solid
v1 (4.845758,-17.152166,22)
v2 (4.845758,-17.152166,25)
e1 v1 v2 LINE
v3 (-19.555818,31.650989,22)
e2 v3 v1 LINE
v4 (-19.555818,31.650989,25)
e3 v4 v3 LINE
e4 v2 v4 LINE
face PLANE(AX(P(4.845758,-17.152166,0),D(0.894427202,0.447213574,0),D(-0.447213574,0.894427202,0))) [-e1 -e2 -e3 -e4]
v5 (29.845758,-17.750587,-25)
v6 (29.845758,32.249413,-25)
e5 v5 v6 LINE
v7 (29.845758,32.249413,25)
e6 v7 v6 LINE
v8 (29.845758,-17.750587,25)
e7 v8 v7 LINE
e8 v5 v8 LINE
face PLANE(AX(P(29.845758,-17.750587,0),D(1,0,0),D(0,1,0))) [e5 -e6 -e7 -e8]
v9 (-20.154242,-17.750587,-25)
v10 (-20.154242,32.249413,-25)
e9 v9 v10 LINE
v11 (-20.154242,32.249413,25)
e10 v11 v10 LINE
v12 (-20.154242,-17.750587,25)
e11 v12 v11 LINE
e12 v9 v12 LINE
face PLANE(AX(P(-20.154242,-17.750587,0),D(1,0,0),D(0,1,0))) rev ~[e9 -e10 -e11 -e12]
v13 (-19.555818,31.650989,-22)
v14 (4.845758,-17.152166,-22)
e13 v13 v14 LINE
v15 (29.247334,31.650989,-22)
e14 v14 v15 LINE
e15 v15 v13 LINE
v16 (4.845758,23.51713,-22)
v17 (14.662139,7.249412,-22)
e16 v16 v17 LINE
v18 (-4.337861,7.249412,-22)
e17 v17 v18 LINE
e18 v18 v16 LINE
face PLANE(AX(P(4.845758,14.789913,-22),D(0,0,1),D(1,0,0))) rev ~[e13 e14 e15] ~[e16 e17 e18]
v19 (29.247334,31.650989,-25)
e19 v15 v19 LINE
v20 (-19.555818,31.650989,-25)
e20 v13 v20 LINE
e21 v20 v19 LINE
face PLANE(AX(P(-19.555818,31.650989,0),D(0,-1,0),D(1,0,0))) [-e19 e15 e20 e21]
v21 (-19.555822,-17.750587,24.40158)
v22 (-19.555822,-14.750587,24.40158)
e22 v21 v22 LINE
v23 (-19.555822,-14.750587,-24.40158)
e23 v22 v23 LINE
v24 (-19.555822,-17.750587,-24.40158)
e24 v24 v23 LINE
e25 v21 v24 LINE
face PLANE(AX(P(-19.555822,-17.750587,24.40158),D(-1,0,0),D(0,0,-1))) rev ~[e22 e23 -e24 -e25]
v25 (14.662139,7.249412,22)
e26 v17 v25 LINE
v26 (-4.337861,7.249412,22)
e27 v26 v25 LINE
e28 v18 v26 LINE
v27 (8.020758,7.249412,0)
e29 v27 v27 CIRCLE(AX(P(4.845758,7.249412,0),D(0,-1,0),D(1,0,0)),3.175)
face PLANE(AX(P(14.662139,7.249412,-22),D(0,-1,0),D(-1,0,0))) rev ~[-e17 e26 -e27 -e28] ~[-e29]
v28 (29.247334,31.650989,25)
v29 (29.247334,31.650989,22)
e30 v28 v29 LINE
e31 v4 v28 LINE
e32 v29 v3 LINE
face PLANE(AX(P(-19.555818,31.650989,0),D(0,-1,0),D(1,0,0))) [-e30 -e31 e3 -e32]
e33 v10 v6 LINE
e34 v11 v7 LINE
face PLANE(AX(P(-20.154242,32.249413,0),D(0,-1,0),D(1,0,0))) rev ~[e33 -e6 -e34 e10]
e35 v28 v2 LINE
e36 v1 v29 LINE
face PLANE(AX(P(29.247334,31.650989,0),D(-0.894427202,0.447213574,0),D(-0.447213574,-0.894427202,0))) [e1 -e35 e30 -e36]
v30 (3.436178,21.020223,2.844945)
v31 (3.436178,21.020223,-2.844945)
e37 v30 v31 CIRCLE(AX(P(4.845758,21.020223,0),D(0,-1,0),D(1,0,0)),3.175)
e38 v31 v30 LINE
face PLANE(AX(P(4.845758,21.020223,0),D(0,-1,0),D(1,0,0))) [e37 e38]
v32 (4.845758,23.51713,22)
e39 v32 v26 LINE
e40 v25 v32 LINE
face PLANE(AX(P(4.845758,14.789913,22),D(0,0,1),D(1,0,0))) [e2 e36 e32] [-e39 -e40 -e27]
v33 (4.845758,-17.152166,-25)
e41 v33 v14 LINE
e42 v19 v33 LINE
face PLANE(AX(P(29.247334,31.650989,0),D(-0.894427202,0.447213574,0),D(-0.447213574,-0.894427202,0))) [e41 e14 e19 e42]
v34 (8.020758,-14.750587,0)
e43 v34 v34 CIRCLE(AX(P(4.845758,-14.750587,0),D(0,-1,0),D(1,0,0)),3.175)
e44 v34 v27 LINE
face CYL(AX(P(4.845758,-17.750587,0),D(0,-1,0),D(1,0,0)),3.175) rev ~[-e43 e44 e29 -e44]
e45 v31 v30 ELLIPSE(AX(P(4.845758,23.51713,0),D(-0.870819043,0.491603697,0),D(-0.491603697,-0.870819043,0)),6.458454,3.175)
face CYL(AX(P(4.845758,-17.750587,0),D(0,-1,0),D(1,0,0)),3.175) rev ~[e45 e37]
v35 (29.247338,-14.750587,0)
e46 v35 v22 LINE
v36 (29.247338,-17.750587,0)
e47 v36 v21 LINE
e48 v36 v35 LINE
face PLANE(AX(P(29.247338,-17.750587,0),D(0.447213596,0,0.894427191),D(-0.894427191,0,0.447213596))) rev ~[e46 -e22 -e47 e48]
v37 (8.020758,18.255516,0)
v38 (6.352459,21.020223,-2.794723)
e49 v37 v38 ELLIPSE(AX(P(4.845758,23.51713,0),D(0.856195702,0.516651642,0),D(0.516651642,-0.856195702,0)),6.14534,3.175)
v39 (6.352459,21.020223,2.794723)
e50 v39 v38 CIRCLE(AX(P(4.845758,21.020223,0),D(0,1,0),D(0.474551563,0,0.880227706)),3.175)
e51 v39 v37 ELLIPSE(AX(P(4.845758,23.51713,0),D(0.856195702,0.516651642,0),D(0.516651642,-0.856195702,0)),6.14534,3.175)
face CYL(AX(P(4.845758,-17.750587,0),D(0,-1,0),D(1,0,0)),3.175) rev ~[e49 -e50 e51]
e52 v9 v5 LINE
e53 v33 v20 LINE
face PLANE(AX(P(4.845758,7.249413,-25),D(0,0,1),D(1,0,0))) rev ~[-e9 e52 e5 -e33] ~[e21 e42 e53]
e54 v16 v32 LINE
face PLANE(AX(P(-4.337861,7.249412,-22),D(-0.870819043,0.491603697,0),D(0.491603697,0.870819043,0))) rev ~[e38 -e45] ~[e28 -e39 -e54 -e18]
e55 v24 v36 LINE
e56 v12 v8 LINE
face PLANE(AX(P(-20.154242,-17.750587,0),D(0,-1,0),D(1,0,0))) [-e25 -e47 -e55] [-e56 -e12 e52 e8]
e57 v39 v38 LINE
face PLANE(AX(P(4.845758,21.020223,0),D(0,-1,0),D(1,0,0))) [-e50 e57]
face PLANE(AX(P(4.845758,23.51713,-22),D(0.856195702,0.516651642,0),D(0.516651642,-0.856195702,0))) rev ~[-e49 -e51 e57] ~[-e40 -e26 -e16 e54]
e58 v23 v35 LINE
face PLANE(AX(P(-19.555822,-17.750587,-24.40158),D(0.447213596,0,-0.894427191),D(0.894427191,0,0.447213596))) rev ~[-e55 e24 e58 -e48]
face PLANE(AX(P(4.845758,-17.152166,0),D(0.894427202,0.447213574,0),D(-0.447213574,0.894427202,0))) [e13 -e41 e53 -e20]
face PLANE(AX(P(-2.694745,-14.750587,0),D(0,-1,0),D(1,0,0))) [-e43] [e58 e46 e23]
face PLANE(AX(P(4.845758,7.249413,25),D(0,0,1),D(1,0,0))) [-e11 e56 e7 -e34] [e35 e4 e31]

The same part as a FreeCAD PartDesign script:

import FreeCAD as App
import Part
import Sketcher

V = App.Vector
Q = App.Units.Quantity

doc = App.newDocument("Part")
body = doc.addObject("PartDesign::Body", "Body")

# Sketch on XY plane
sketch1 = body.newObject("Sketcher::SketchObject", "Sketch")
sketch1.AttachmentSupport = (doc.getObject("XY_Plane"), [""])
sketch1.MapMode = "FlatFace"
sketch1.addGeometry([
    Part.LineSegment(V(-20.154242, 32.249413, 0), V(-20.154242, -17.750587, 0)),  # 0
    Part.LineSegment(V(-20.154242, -17.750587, 0), V(29.845758, -17.750587, 0)),  # 1
    Part.LineSegment(V(29.845758, -17.750587, 0), V(29.845758, 32.249413, 0)),  # 2
    Part.LineSegment(V(29.845758, 32.249413, 0), V(-20.154242, 32.249413, 0)),  # 3
    Part.LineSegment(V(29.247334, 31.650989, 0), V(4.845758, -17.152166, 0)),  # 4
    Part.LineSegment(V(4.845758, -17.152166, 0), V(-19.555818, 31.650989, 0)),  # 5
    Part.LineSegment(V(-19.555818, 31.650989, 0), V(29.247334, 31.650989, 0)),  # 6
], False)
sketch1.addConstraint([
    Sketcher.Constraint("Coincident", 0, 2, 1, 1),
    Sketcher.Constraint("Coincident", 1, 2, 2, 1),
    Sketcher.Constraint("Coincident", 2, 2, 3, 1),
    Sketcher.Constraint("Coincident", 3, 2, 0, 1),
    Sketcher.Constraint("Coincident", 4, 2, 5, 1),
    Sketcher.Constraint("Coincident", 5, 2, 6, 1),
    Sketcher.Constraint("Coincident", 6, 2, 4, 1),
    Sketcher.Constraint("Vertical", 0),
    Sketcher.Constraint("Horizontal", 1),
    Sketcher.Constraint("Vertical", 2),
    Sketcher.Constraint("Horizontal", 3),
    Sketcher.Constraint("Horizontal", 6),
    Sketcher.Constraint("Equal", 3, 0),
    Sketcher.Constraint("Equal", 4, 5),
    Sketcher.Constraint("DistanceX", 1, 1, 1, 2, Q("50 mm")),
    Sketcher.Constraint("DistanceX", 0, 2, 4, 2, Q("25 mm")),
    Sketcher.Constraint("DistanceX", 6, 1, 6, 2, Q("48.803152 mm")),
    Sketcher.Constraint("DistanceX", 0, 2, -1, 1, Q("20.154242 mm")),
    Sketcher.Constraint("DistanceY", -1, 1, 5, 2, Q("31.650989 mm")),
    Sketcher.Constraint("DistanceY", 0, 2, 4, 2, Q("0.598421 mm")),
    Sketcher.Constraint("Distance", 4, Q("54.563585 mm")),
])
pad1 = body.newObject("PartDesign::Pad", "Pad")
pad1.Profile = sketch1
pad1.Length = 50
pad1.Midplane = True

# Sketch on XY plane
sketch2 = body.newObject("Sketcher::SketchObject", "Sketch001")
sketch2.AttachmentSupport = (doc.getObject("XY_Plane"), [""])
sketch2.MapMode = "FlatFace"
sketch2.addGeometry([
    Part.LineSegment(V(29.247334, 31.650989, 0), V(-19.555818, 31.650989, 0)),
    Part.LineSegment(V(-19.555818, 31.650989, 0), V(4.845758, -17.152166, 0)),
    Part.LineSegment(V(4.845758, -17.152166, 0), V(29.247334, 31.650989, 0)),
], False)
sketch2.addConstraint([
    Sketcher.Constraint("Coincident", 0, 2, 1, 1),
    Sketcher.Constraint("Coincident", 1, 2, 2, 1),
    Sketcher.Constraint("Coincident", 2, 2, 0, 1),
    Sketcher.Constraint("Horizontal", 0),
    Sketcher.Constraint("Equal", 1, 2),
    Sketcher.Constraint("DistanceX", 0, 2, 0, 1, Q("48.803152 mm")),
    Sketcher.Constraint("DistanceY", -1, 1, 0, 2, Q("31.650989 mm")),
    Sketcher.Constraint("Distance", 1, Q("54.563585 mm")),
    Sketcher.Constraint("DistanceX", 0, 2, -1, 1, Q("19.555818 mm")),
])
pad2 = body.newObject("PartDesign::Pad", "Pad001")
pad2.Profile = sketch2
pad2.Length = 44
pad2.Midplane = True

# Sketch on XY plane
sketch3 = body.newObject("Sketcher::SketchObject", "Sketch002")
sketch3.AttachmentSupport = (doc.getObject("XY_Plane"), [""])
sketch3.MapMode = "FlatFace"
sketch3.AttachmentOffset = App.Placement(V(0, 0, -22), App.Rotation())
sketch3.addGeometry([
    Part.LineSegment(V(-4.337861, 7.249412, 0), V(4.845758, 23.51713, 0)),
    Part.LineSegment(V(4.845758, 23.51713, 0), V(14.662139, 7.249412, 0)),
    Part.LineSegment(V(14.662139, 7.249412, 0), V(-4.337861, 7.249412, 0)),
], False)
sketch3.addConstraint([
    Sketcher.Constraint("Coincident", 0, 2, 1, 1),
    Sketcher.Constraint("Coincident", 1, 2, 2, 1),
    Sketcher.Constraint("Coincident", 2, 2, 0, 1),
    Sketcher.Constraint("Horizontal", 2),
    Sketcher.Constraint("DistanceX", 2, 2, 2, 1, Q("19 mm")),
    Sketcher.Constraint("Distance", 1, Q("19 mm")),
    Sketcher.Constraint("Distance", 0, Q("18.68094 mm")),
    Sketcher.Constraint("DistanceY", -1, 1, 0, 2, Q("23.51713 mm")),
    Sketcher.Constraint("DistanceX", -1, 1, 1, 2, Q("14.662139 mm")),
])
pocket1 = body.newObject("PartDesign::Pocket", "Pocket")
pocket1.Profile = sketch3
pocket1.Length = 48
pocket1.Reversed = True

# Sketch on XZ plane
sketch4 = body.newObject("Sketcher::SketchObject", "Sketch003")
sketch4.AttachmentSupport = (doc.getObject("XZ_Plane"), [""])
sketch4.MapMode = "FlatFace"
sketch4.AttachmentOffset = App.Placement(V(0, 0, 17.750587), App.Rotation())
sketch4.addGeometry(Part.Circle(V(4.845758, 0, 0), V(0, 0, 1), 3.175), False)
sketch4.addConstraint([
    Sketcher.Constraint("PointOnObject", 0, 3, -1),
    Sketcher.Constraint("Diameter", 0, Q("6.35 mm")),
    Sketcher.Constraint("DistanceX", -1, 1, 0, 3, Q("4.845758 mm")),
])
pocket2 = body.newObject("PartDesign::Pocket", "Pocket001")
pocket2.Profile = sketch4
pocket2.Length = 38.77081

# Sketch on XZ plane
sketch5 = body.newObject("Sketcher::SketchObject", "Sketch004")
sketch5.AttachmentSupport = (doc.getObject("XZ_Plane"), [""])
sketch5.MapMode = "FlatFace"
sketch5.AttachmentOffset = App.Placement(V(0, 0, 17.750587), App.Rotation())
sketch5.addGeometry([
    Part.LineSegment(V(29.247338, 0, 0), V(-19.555822, 24.40158, 0)),
    Part.LineSegment(V(-19.555822, 24.40158, 0), V(-19.555822, -24.40158, 0)),
    Part.LineSegment(V(-19.555822, -24.40158, 0), V(29.247338, 0, 0)),
], False)
sketch5.addConstraint([
    Sketcher.Constraint("Coincident", 0, 2, 1, 1),
    Sketcher.Constraint("Coincident", 1, 2, 2, 1),
    Sketcher.Constraint("Coincident", 2, 2, 0, 1),
    Sketcher.Constraint("Vertical", 1),
    Sketcher.Constraint("PointOnObject", 2, 2, -1),
    Sketcher.Constraint("Equal", 0, 2),
    Sketcher.Constraint("DistanceY", 1, 2, 1, 1, Q("48.80316 mm")),
    Sketcher.Constraint("Distance", 0, Q("54.563592 mm")),
    Sketcher.Constraint("DistanceX", 0, 2, -1, 1, Q("19.555822 mm")),
])
pocket3 = body.newObject("PartDesign::Pocket", "Pocket002")
pocket3.Profile = sketch5
pocket3.Length = 3

doc.recompute()
